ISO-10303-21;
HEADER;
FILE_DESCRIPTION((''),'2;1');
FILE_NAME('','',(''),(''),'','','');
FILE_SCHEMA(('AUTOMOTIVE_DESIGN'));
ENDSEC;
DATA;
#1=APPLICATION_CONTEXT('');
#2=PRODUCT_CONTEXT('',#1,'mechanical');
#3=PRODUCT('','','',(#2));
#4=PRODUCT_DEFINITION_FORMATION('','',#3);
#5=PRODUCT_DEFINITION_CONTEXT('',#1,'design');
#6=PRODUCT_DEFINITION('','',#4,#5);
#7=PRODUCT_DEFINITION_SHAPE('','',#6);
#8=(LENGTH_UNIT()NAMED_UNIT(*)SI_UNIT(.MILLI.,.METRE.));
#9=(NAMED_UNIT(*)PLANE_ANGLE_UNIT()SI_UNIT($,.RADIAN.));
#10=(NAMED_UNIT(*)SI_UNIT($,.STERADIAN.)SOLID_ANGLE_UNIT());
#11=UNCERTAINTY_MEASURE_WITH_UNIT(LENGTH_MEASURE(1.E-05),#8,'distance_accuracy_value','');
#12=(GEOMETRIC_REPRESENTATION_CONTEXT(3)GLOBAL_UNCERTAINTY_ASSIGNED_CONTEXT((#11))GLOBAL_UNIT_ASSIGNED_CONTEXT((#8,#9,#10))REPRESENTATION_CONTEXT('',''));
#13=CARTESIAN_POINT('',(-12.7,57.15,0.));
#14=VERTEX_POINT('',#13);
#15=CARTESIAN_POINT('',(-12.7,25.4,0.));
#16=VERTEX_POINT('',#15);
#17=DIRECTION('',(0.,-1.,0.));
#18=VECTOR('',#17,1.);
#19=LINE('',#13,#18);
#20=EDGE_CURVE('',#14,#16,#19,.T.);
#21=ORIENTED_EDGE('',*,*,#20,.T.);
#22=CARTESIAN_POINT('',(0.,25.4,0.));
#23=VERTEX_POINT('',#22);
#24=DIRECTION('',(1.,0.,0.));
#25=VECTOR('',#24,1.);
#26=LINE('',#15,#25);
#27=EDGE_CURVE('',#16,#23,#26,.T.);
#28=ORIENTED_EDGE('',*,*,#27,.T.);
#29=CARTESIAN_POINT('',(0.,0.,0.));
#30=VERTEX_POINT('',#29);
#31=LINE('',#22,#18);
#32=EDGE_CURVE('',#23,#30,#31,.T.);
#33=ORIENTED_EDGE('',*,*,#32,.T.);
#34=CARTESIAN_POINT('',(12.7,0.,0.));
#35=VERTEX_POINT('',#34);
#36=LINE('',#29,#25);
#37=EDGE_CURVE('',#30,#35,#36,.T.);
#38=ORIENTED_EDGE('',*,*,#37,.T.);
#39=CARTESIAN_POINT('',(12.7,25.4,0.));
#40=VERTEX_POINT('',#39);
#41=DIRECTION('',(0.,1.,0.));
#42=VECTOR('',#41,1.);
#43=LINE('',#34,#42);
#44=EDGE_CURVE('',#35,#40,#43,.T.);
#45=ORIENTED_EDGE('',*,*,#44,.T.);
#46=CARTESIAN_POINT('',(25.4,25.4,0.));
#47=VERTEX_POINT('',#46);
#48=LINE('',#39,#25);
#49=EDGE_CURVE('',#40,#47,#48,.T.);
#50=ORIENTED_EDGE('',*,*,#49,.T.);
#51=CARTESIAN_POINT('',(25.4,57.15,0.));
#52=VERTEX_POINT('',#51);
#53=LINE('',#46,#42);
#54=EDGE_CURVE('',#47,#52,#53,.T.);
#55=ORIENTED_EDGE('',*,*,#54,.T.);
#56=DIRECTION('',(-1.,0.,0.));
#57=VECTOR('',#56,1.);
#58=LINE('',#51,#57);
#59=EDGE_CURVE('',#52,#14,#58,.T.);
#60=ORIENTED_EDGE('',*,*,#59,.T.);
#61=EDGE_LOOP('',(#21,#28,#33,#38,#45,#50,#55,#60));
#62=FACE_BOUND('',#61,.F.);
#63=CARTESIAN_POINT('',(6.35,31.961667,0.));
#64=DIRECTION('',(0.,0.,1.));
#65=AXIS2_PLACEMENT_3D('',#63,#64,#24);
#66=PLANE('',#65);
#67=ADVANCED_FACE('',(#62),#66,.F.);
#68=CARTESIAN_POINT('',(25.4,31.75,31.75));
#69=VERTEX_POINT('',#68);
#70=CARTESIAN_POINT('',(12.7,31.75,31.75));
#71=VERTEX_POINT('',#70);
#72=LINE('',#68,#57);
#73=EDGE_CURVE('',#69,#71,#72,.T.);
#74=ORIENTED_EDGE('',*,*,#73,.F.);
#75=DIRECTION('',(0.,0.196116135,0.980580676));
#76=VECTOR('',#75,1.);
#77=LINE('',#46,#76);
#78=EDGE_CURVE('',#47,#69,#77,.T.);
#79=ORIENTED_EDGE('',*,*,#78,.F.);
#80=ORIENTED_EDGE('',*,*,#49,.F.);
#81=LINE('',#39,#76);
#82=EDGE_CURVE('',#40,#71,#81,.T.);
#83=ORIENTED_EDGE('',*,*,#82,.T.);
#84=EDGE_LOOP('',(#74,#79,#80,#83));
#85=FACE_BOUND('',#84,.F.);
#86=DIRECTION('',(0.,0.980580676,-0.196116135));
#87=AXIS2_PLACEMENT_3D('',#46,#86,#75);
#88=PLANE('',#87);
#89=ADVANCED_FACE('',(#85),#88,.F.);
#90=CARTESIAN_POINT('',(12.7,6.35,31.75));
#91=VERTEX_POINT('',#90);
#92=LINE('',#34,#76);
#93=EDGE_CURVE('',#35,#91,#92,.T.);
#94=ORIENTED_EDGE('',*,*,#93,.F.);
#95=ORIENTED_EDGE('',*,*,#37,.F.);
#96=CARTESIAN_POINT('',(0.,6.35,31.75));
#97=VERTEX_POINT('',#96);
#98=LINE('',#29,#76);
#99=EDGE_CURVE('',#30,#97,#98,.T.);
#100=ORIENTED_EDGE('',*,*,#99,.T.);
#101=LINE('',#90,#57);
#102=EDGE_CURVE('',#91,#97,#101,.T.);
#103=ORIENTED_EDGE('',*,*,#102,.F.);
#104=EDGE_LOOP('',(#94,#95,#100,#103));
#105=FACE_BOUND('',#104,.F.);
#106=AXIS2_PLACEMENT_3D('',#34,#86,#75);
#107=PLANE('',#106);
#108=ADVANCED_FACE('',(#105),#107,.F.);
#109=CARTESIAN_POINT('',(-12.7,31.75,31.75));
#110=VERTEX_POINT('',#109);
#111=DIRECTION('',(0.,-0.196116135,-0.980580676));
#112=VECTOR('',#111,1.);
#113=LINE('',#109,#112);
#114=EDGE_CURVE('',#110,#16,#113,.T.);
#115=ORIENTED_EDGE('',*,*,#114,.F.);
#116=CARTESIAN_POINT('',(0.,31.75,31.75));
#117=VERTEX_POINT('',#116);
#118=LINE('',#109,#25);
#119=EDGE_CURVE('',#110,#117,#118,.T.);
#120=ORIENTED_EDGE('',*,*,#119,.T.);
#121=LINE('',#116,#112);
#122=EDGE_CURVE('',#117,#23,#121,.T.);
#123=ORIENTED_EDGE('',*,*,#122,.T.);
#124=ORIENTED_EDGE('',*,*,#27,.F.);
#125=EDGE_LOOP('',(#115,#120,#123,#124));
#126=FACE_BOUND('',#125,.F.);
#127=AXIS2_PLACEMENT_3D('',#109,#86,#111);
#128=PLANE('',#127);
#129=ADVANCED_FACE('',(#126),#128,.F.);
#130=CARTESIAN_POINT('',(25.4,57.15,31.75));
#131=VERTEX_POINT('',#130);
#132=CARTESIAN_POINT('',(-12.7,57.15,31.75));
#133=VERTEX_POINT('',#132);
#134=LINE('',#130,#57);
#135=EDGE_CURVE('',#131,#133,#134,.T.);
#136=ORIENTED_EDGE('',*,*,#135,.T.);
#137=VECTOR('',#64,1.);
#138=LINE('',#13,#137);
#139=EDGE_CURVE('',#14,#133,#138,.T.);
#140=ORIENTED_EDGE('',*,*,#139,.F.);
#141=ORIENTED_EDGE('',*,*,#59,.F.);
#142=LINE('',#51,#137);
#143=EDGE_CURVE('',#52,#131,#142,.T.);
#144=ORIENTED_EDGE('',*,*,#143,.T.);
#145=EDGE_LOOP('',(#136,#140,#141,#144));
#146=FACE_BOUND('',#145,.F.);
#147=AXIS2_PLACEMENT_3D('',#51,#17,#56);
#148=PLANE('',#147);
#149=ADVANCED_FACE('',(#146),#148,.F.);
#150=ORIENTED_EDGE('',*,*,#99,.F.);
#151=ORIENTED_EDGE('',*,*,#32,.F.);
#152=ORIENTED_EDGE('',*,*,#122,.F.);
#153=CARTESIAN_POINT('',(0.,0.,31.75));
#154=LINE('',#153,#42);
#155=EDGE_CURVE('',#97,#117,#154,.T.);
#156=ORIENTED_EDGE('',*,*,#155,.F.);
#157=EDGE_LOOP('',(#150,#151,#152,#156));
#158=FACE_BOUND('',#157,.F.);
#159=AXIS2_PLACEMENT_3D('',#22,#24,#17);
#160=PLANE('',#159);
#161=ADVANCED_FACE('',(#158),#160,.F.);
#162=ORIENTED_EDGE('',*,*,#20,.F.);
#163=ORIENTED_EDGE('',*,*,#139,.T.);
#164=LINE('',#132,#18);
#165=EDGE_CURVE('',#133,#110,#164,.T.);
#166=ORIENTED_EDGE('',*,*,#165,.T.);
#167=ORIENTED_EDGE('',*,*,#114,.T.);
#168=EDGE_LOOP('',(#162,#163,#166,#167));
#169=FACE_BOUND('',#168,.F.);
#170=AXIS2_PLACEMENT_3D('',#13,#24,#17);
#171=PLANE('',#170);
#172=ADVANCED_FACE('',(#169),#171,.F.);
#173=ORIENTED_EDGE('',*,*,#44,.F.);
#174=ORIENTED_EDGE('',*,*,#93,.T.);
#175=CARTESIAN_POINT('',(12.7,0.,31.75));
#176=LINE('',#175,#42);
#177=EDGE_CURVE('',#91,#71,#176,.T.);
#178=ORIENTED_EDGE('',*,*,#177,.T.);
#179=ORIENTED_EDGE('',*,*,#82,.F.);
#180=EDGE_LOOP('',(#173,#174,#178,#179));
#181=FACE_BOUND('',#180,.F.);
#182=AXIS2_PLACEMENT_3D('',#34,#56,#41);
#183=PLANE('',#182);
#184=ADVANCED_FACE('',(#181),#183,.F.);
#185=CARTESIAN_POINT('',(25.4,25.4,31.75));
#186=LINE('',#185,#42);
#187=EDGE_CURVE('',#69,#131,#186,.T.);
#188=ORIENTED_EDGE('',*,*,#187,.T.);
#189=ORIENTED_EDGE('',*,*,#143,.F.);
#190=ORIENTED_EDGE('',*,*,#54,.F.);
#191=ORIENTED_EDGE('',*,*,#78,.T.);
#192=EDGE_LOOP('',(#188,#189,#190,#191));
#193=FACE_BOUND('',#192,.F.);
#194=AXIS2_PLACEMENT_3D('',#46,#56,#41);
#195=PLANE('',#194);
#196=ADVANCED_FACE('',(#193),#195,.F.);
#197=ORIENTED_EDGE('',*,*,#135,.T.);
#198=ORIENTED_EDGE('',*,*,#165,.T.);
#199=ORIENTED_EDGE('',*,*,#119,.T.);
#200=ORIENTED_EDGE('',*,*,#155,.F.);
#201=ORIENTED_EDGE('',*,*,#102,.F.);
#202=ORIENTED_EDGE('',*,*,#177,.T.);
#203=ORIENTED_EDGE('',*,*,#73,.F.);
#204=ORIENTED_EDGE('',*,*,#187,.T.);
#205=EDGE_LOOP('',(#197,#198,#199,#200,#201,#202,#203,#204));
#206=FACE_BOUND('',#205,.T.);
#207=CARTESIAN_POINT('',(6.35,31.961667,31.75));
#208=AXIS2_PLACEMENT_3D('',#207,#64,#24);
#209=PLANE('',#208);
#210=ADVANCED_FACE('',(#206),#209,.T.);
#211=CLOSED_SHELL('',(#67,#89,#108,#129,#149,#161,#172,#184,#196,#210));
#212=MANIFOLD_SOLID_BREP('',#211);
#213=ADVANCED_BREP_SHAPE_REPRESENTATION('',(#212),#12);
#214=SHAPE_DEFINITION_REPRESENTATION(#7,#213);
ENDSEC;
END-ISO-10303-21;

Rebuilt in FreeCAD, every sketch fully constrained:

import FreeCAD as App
import Part
import Sketcher
Q = App.Units.Quantity


def add_polygon(sketch, points):
    """Adds a closed chain of lines whose ends are joined by coincident constraints."""
    first, n = sketch.GeometryCount, len(points)
    for a, b in zip(points, points[1:] + points[:1]):
        sketch.addGeometry(Part.LineSegment(App.Vector(*a, 0), App.Vector(*b, 0)), False)
    for i in range(n):
        sketch.addConstraint(Sketcher.Constraint("Coincident", first + i, 2, first + (i + 1) % n, 1))

doc = App.newDocument("Part")
body = doc.addObject("PartDesign::Body", "Body")

sketch1 = body.newObject("Sketcher::SketchObject", "Sketch")
sketch1.AttachmentSupport = (doc.getObject("XY_Plane"), [""])
sketch1.MapMode = "FlatFace"
add_polygon(sketch1, [(0, 25), (0, 0), (13, 0), (13, 25), (25, 25), (25, 57), (-13, 57), (-13, 25)])
sketch1.addConstraint([
    Sketcher.Constraint("Vertical", 0),
    Sketcher.Constraint("Horizontal", 1),
    Sketcher.Constraint("Vertical", 2),
    Sketcher.Constraint("Horizontal", 3),
    Sketcher.Constraint("Vertical", 4),
    Sketcher.Constraint("Horizontal", 5),
    Sketcher.Constraint("Vertical", 6),
    Sketcher.Constraint("Horizontal", 7),
    Sketcher.Constraint("Coincident", 0, 2, -1, 1),
    Sketcher.Constraint("Symmetric", 2, 2, 6, 2, -2),
    Sketcher.Constraint("Equal", 1, 3),
    Sketcher.Constraint("DistanceY", 0, 2, 0, 1, Q("1 in")),
    Sketcher.Constraint("DistanceX", 1, 1, 1, 2, Q("0.5 in")),
    Sketcher.Constraint("DistanceY", 4, 1, 4, 2, Q("1.25 in")),
])
pad1 = body.newObject("PartDesign::Pad", "Pad")
pad1.Profile = sketch1
pad1.Length = Q("1.25 in")

sketch2 = body.newObject("Sketcher::SketchObject", "Sketch001")
sketch2.AttachmentSupport = (doc.getObject("YZ_Plane"), [""])
sketch2.MapMode = "FlatFace"
sketch2.AttachmentOffset = App.Placement(App.Vector(0, 0, -0.5 * 25.4), App.Rotation())
add_polygon(sketch2, [(32, 32), (25, 0), (25, 32)])
sketch2.addConstraint([
    Sketcher.Constraint("Vertical", 1),
    Sketcher.Constraint("Horizontal", 2),
    Sketcher.Constraint("PointOnObject", 0, 2, -1),
    Sketcher.Constraint("DistanceX", -1, 1, 0, 2, Q("1 in")),
    Sketcher.Constraint("DistanceX", 2, 1, 2, 2, Q("0.25 in")),
    Sketcher.Constraint("DistanceY", 1, 1, 1, 2, Q("1.25 in")),
])
pocket1 = body.newObject("PartDesign::Pocket", "Pocket")
pocket1.Profile = sketch2
pocket1.Length = Q("0.5 in")
pocket1.Reversed = True

sketch3 = body.newObject("Sketcher::SketchObject", "Sketch002")
sketch3.AttachmentSupport = (doc.getObject("YZ_Plane"), [""])
sketch3.MapMode = "FlatFace"
sketch3.AttachmentOffset = App.Placement(App.Vector(0, 0, 1 * 25.4), App.Rotation())
add_polygon(sketch3, [(25, 32), (25, 0), (32, 32)])
sketch3.addConstraint([
    Sketcher.Constraint("Vertical", 0),
    Sketcher.Constraint("Horizontal", 2),
    Sketcher.Constraint("PointOnObject", 0, 2, -1),
    Sketcher.Constraint("DistanceX", -1, 1, 0, 2, Q("1 in")),
    Sketcher.Constraint("DistanceX", 2, 2, 2, 1, Q("0.25 in")),
    Sketcher.Constraint("DistanceY", 0, 2, 0, 1, Q("1.25 in")),
])
pocket2 = body.newObject("PartDesign::Pocket", "Pocket001")
pocket2.Profile = sketch3
pocket2.Length = Q("0.5 in")

sketch4 = body.newObject("Sketcher::SketchObject", "Sketch003")
sketch4.AttachmentSupport = (doc.getObject("YZ_Plane"), [""])
sketch4.MapMode = "FlatFace"
sketch4.AttachmentOffset = App.Placement(App.Vector(0, 0, 0.5 * 25.4), App.Rotation())
add_polygon(sketch4, [(0, 32), (0, 0), (6, 32)])
sketch4.addConstraint([
    Sketcher.Constraint("Vertical", 0),
    Sketcher.Constraint("Horizontal", 2),
    Sketcher.Constraint("Coincident", 0, 2, -1, 1),
    Sketcher.Constraint("DistanceX", 2, 2, 2, 1, Q("0.25 in")),
    Sketcher.Constraint("DistanceY", 0, 2, 0, 1, Q("1.25 in")),
])
pocket3 = body.newObject("PartDesign::Pocket", "Pocket002")
pocket3.Profile = sketch4
pocket3.Length = Q("0.5 in")

doc.recompute()
